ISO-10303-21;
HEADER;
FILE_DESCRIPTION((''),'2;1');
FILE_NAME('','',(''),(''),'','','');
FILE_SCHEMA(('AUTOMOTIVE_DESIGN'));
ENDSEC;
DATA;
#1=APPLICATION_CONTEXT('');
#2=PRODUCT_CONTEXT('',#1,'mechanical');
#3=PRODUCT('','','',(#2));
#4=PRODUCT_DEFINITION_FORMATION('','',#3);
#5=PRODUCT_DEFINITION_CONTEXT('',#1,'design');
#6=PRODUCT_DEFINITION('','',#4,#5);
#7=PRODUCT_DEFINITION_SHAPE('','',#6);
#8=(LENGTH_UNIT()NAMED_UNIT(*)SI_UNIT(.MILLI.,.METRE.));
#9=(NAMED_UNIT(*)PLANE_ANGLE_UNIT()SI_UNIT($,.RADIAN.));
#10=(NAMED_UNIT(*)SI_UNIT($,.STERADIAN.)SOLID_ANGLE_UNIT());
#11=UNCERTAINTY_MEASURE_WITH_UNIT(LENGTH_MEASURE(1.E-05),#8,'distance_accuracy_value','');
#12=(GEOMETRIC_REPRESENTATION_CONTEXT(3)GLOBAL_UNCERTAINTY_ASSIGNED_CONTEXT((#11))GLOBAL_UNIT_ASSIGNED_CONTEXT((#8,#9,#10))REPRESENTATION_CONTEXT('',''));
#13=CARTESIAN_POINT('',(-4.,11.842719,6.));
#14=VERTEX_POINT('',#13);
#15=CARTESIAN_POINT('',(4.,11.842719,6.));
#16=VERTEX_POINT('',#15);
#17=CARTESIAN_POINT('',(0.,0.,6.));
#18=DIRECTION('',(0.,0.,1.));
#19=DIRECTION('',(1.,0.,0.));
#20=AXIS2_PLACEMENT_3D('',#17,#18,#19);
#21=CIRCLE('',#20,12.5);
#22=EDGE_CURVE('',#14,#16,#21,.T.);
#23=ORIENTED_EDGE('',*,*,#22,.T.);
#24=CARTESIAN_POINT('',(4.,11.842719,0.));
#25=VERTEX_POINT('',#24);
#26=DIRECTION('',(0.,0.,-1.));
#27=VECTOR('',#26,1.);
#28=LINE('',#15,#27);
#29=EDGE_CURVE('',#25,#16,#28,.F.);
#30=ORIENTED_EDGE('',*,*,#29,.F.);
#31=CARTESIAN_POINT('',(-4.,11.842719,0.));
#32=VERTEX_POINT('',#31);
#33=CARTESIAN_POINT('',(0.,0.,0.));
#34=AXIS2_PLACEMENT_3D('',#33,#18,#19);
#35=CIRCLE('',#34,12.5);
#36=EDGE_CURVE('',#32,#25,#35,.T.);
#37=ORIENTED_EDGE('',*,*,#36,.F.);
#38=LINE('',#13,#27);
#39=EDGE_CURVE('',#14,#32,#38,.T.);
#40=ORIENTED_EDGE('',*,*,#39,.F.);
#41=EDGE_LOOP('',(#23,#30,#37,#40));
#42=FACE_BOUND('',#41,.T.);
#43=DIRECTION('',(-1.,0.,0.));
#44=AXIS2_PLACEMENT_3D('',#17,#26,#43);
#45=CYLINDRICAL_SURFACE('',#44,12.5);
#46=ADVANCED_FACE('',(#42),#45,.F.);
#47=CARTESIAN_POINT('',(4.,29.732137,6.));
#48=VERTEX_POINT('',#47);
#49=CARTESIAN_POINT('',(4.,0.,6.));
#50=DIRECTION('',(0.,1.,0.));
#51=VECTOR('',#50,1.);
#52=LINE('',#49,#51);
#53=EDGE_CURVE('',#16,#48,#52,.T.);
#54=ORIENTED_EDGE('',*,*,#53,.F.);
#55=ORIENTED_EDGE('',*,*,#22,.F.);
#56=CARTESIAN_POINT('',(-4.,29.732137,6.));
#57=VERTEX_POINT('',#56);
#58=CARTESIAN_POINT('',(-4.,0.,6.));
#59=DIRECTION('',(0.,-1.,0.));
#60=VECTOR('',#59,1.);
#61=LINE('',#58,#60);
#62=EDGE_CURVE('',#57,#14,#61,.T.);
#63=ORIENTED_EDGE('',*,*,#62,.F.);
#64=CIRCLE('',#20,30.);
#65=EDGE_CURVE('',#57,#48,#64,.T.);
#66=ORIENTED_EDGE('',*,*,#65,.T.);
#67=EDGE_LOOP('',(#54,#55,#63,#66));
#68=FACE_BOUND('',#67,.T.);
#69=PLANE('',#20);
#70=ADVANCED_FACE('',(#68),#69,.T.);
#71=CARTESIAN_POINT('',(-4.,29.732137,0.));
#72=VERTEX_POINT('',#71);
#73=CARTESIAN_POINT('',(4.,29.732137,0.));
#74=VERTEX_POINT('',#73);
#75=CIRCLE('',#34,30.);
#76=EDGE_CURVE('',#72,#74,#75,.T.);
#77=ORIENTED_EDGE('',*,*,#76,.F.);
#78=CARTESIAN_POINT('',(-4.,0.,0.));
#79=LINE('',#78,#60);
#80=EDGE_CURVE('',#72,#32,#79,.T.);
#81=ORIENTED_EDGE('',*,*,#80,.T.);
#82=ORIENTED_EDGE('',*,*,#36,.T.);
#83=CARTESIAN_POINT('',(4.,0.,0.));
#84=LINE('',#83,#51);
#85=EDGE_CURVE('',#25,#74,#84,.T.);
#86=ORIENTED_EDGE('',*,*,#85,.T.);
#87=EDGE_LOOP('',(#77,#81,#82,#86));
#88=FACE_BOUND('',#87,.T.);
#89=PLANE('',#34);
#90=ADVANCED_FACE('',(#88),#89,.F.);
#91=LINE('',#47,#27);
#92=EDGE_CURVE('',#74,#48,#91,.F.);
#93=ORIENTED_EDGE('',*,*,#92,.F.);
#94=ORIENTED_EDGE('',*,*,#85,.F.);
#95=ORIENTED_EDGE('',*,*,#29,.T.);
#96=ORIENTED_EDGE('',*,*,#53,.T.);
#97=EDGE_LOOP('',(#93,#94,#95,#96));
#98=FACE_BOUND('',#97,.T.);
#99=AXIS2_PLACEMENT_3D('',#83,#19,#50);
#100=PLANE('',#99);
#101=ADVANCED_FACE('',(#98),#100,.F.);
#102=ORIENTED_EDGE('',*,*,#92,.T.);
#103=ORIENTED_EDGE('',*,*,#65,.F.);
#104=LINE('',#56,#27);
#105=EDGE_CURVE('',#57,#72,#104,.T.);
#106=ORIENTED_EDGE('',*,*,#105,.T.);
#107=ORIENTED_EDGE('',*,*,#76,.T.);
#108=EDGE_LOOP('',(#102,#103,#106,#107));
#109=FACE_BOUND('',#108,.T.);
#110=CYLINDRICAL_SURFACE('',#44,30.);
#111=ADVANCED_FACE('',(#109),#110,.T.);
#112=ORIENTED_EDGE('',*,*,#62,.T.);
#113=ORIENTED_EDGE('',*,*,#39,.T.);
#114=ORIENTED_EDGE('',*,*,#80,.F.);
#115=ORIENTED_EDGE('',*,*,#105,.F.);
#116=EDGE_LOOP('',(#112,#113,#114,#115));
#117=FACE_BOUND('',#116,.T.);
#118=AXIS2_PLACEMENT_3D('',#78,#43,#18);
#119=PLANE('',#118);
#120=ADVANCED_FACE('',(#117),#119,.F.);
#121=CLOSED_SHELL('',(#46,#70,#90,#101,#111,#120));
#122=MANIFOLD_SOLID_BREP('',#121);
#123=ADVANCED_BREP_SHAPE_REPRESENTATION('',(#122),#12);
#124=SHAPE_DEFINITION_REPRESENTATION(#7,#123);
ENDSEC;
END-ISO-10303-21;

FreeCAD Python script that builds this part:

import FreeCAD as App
import Part
import Sketcher

V = App.Vector


def add_polygon(sketch, points):
    """Adds a closed chain of lines whose ends are joined by coincident constraints."""
    first, n = sketch.GeometryCount, len(points)
    for a, b in zip(points, points[1:] + points[:1]):
        sketch.addGeometry(Part.LineSegment(App.Vector(*a, 0), App.Vector(*b, 0)), False)
    for i in range(n):
        sketch.addConstraint(Sketcher.Constraint("Coincident", first + i, 2, first + (i + 1) % n, 1))

doc = App.newDocument("Part")
body = doc.addObject("PartDesign::Body", "Body")

sketch1 = body.newObject("Sketcher::SketchObject", "Sketch")
sketch1.AttachmentSupport = (doc.getObject("XY_Plane"), [""])
sketch1.MapMode = "FlatFace"
sketch1.addGeometry([
    Part.Circle(V(0, 0, 0), V(0, 0, 1), 30),
    Part.Circle(V(0, 0, 0), V(0, 0, 1), 12.5),
], False)
sketch1.addConstraint([
    Sketcher.Constraint("Coincident", 0, 3, -1, 1),
    Sketcher.Constraint("Coincident", 1, 3, -1, 1),
    Sketcher.Constraint("Diameter", 0, 60.0),
    Sketcher.Constraint("Diameter", 1, 25.0),
])
pad1 = body.newObject("PartDesign::Pad", "Pad")
pad1.Profile = sketch1
pad1.Length = 6

sketch2 = body.newObject("Sketcher::SketchObject", "Sketch001")
sketch2.AttachmentSupport = (doc.getObject("XY_Plane"), [""])
sketch2.MapMode = "FlatFace"
sketch2.AttachmentOffset = App.Placement(V(0, 0, 6), App.Rotation())
add_polygon(sketch2, [(-4, 40), (-4, 0), (4, 0), (4, 40)])
sketch2.addConstraint([
    Sketcher.Constraint("Vertical", 0),
    Sketcher.Constraint("Horizontal", 1),
    Sketcher.Constraint("Vertical", 2),
    Sketcher.Constraint("Horizontal", 3),
    Sketcher.Constraint("Symmetric", 0, 2, 1, 2, -1, 1),
    Sketcher.Constraint("DistanceX", 1, 1, 1, 2, 8.0),
    Sketcher.Constraint("DistanceY", 0, 2, 0, 1, 40.0),
])
pocket1 = body.newObject("PartDesign::Pocket", "Pocket")
pocket1.Profile = sketch2
pocket1.Type = "ThroughAll"
pocket1.Midplane = True

doc.recompute()
